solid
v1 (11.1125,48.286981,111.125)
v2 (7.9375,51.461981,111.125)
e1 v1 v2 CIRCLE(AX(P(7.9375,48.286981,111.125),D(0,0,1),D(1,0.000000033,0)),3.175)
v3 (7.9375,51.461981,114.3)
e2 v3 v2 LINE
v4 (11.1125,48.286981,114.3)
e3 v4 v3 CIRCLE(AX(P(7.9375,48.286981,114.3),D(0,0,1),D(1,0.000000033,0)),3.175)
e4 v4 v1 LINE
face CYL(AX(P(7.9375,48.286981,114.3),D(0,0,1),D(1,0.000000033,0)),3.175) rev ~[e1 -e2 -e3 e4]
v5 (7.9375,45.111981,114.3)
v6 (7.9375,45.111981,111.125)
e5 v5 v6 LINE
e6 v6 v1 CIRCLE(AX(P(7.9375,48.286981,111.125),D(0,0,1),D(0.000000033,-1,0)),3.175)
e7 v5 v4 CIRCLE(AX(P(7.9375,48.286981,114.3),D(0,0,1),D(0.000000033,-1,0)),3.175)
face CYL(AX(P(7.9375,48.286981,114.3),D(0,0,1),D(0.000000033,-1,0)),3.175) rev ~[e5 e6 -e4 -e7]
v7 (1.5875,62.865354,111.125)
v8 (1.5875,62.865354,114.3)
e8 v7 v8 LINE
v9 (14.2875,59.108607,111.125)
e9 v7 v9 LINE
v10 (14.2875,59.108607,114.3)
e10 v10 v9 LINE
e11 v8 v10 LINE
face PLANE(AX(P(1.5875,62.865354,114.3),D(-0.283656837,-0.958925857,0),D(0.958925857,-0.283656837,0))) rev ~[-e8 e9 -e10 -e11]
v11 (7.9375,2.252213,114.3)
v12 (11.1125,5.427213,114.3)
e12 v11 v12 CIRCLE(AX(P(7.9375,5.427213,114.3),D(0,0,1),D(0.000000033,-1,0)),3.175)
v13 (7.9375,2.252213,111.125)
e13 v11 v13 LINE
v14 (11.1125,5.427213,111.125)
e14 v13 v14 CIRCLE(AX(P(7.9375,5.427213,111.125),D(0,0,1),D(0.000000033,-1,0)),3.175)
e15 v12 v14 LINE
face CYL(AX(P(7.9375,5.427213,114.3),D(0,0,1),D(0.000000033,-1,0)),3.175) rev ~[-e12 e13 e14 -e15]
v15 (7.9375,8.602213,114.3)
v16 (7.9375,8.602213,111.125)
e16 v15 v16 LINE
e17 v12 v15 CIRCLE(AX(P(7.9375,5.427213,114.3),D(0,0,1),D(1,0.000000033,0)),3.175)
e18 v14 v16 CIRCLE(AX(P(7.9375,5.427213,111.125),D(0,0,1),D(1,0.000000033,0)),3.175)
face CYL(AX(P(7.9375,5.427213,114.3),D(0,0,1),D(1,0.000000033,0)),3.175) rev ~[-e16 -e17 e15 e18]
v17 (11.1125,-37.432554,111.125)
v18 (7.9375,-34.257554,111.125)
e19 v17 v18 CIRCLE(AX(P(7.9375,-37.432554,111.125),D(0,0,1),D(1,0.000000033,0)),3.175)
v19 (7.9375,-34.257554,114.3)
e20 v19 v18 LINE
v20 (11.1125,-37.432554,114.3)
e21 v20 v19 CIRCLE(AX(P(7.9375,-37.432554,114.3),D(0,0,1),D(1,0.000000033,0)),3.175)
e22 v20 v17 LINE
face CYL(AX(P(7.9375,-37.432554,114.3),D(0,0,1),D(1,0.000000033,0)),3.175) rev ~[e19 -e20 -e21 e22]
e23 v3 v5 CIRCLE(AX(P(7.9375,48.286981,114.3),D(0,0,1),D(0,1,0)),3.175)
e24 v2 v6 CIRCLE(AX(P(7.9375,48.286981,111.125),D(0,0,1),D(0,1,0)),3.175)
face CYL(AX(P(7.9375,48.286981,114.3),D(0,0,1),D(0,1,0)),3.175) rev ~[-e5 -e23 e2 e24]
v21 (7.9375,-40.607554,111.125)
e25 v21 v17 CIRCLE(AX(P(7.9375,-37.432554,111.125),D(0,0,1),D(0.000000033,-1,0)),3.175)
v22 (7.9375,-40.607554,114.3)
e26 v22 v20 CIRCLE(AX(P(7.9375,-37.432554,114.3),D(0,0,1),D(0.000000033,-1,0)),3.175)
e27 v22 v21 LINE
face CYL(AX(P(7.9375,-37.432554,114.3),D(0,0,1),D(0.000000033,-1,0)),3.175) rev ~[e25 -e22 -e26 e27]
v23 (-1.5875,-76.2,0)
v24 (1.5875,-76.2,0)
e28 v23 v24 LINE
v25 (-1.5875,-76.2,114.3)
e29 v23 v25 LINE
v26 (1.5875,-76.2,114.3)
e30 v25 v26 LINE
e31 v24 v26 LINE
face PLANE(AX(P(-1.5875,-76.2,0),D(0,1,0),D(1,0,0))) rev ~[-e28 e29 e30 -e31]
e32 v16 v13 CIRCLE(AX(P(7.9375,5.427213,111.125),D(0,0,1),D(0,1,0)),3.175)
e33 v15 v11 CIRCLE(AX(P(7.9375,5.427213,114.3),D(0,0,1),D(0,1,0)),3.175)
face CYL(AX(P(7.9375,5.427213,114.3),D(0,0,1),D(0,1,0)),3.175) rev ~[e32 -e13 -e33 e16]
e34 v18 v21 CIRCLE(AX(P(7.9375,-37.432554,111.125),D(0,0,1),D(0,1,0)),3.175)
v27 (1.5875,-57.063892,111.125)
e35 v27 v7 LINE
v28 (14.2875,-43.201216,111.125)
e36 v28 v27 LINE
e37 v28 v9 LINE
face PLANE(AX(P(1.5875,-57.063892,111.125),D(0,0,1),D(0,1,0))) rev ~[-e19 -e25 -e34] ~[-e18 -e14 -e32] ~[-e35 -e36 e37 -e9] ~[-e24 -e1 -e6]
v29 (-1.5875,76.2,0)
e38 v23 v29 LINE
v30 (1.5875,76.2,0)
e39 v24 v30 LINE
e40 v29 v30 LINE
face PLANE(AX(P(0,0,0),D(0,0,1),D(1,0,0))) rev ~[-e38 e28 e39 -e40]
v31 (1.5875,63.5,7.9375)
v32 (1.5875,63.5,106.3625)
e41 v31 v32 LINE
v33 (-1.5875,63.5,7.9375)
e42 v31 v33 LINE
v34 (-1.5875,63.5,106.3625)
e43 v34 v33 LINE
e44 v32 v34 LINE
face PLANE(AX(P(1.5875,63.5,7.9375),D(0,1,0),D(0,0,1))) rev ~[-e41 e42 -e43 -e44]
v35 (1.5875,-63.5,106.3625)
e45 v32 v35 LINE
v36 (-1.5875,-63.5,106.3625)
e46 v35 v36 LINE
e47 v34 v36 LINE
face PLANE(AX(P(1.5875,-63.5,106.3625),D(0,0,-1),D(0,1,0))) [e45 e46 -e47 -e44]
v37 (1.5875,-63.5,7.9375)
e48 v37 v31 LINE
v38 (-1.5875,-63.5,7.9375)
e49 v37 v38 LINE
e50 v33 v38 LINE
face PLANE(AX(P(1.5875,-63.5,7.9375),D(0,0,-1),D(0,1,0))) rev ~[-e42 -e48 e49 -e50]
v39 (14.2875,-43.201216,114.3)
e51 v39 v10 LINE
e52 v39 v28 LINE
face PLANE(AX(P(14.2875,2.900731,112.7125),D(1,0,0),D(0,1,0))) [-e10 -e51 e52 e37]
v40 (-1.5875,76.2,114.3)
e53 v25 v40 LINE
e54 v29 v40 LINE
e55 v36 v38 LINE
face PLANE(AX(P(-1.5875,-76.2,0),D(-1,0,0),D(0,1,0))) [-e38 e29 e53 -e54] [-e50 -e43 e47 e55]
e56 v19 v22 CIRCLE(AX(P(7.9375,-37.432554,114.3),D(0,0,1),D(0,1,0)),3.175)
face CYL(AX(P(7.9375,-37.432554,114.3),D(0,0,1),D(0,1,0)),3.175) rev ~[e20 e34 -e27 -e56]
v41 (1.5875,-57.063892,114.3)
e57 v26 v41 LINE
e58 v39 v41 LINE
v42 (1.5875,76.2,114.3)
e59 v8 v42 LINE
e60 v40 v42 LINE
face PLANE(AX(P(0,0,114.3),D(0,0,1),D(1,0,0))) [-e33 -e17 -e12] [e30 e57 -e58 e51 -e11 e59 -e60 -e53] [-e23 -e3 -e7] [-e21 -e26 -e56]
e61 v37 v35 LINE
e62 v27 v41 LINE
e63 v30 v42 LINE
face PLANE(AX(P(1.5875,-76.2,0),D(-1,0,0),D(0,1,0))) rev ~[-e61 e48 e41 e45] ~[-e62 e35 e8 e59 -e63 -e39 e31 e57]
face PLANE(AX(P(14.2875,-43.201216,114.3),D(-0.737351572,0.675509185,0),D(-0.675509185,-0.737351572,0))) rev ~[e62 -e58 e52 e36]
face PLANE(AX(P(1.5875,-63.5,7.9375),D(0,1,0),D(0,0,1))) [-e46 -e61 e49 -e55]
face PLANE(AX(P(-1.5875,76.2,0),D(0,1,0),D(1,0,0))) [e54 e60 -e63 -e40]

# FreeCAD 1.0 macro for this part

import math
import FreeCAD as App
import Part
import Sketcher
from FreeCAD import Vector
Q = App.Units.Quantity


def add_polygon(sketch, points):
    """Adds a closed chain of lines whose ends are joined by coincident constraints."""
    first, n = sketch.GeometryCount, len(points)
    for a, b in zip(points, points[1:] + points[:1]):
        sketch.addGeometry(Part.LineSegment(App.Vector(*a, 0), App.Vector(*b, 0)), False)
    for i in range(n):
        sketch.addConstraint(Sketcher.Constraint("Coincident", first + i, 2, first + (i + 1) % n, 1))

doc = App.newDocument("Part")
params = doc.addObject("Spreadsheet::Sheet", "Params")
for row, (alias, value) in enumerate([
    ("sketch1_height", "6 in"),
    ("sketch1_width", "0.125 in"),
    ("pad1_length", "4.5 in"),
    ("sketch2_width", "5 in"),
    ("sketch2_height", "3.875 in"),
    ("pocket1_length", "1 in"),
    ("sketch3_height", "0.125 in"),
    ("pad2_length", "0.5 in"),
    ("sketch4_width", "0.5 in"),
    ("pocket2_length", "1 in"),
    ("sketch5_radius", "0.125 in"),
    ("pocket3_length", "1 in"),
], start=1):
    params.set(f"A{row}", alias)
    params.set(f"B{row}", "=" + value)
    params.setAlias(f"B{row}", alias)

body = doc.addObject("PartDesign::Body", "Body")

# Sketch on XY plane
sketch1 = body.newObject("Sketcher::SketchObject", "Sketch")
sketch1.AttachmentSupport = (doc.getObject("XY_Plane"), [""])
sketch1.MapMode = "FlatFace"
add_polygon(sketch1, [(-1.6, 76.2), (-1.6, -76.2), (1.6, -76.2), (1.6, 76.2)])  # lines 0-3
sketch1.addConstraint([
    Sketcher.Constraint("Vertical", 0),
    Sketcher.Constraint("Horizontal", 1),
    Sketcher.Constraint("Vertical", 2),
    Sketcher.Constraint("Horizontal", 3),
    Sketcher.Constraint("Symmetric", 0, 2, 2, 2, -1, 1),
    Sketcher.Constraint("DistanceY", 0, 2, 0, 1, Q("6 in")),
    Sketcher.Constraint("DistanceX", 1, 1, 1, 2, Q("0.125 in")),
])
sketch1.setExpression("Constraints[9]", "Params.sketch1_height")
sketch1.setExpression("Constraints[10]", "Params.sketch1_width")
pad1 = body.newObject("PartDesign::Pad", "Pad")
pad1.Profile = sketch1
pad1.setExpression("Length", "Params.pad1_length")

# Sketch on YZ plane
sketch2 = body.newObject("Sketcher::SketchObject", "Sketch001")
sketch2.AttachmentSupport = (doc.getObject("YZ_Plane"), [""])
sketch2.MapMode = "FlatFace"
sketch2.AttachmentOffset = App.Placement(Vector(0, 0, 0.0625 * 25.4), App.Rotation())
add_polygon(sketch2, [(-64, 106), (-64, 8), (64, 8), (64, 106)])  # lines 0-3
sketch2.addConstraint([
    Sketcher.Constraint("Vertical", 0),
    Sketcher.Constraint("Horizontal", 1),
    Sketcher.Constraint("Vertical", 2),
    Sketcher.Constraint("Horizontal", 3),
    Sketcher.Constraint("DistanceX", 1, 1, 1, 2, Q("5 in")),
    Sketcher.Constraint("DistanceX", 0, 2, -1, 1, Q("2.5 in")),
    Sketcher.Constraint("DistanceY", 0, 2, 0, 1, Q("3.875 in")),
    Sketcher.Constraint("DistanceY", -1, 1, 0, 2, Q("0.3125 in")),
])
sketch2.setExpression("Constraints[8]", "Params.sketch2_width")
sketch2.setExpression("Constraints[10]", "Params.sketch2_height")
pocket1 = body.newObject("PartDesign::Pocket", "Pocket")
pocket1.Profile = sketch2
pocket1.setExpression("Length", "Params.pocket1_length")

# Sketch on YZ plane
sketch3 = body.newObject("Sketcher::SketchObject", "Sketch002")
sketch3.AttachmentSupport = (doc.getObject("YZ_Plane"), [""])
sketch3.MapMode = "FlatFace"
sketch3.AttachmentOffset = App.Placement(Vector(0, 0, 0.0625 * 25.4), App.Rotation())
add_polygon(sketch3, [(-57.1, 114.3), (-57.1, 111.1), (62.9, 111.1), (62.9, 114.3)])  # lines 0-3
sketch3.addConstraint([
    Sketcher.Constraint("Vertical", 0),
    Sketcher.Constraint("Horizontal", 1),
    Sketcher.Constraint("Vertical", 2),
    Sketcher.Constraint("Horizontal", 3),
    Sketcher.Constraint("DistanceY", -1, 1, 2, 2, Q("4.5 in")),
    Sketcher.Constraint("DistanceY", 0, 2, 0, 1, Q("0.125 in")),
    Sketcher.Constraint("DistanceX", 1, 1, 1, 2, Q("119.929246 mm")),
    Sketcher.Constraint("DistanceX", 0, 2, -1, 1, Q("57.063892 mm")),
])
sketch3.setExpression("Constraints[9]", "Params.sketch3_height")
pad2 = body.newObject("PartDesign::Pad", "Pad001")
pad2.Profile = sketch3
pad2.setExpression("Length", "Params.pad2_length")

# Sketch on XY plane
sketch4 = body.newObject("Sketcher::SketchObject", "Sketch003")
sketch4.AttachmentSupport = (doc.getObject("XY_Plane"), [""])
sketch4.MapMode = "FlatFace"
sketch4.AttachmentOffset = App.Placement(Vector(0, 0, 4.5 * 25.4), App.Rotation())
add_polygon(sketch4, [(14.3, 62.9), (1.6, 62.9), (14.3, 59.1)])  # lines 0-2
add_polygon(sketch4, [(14.3, -43.2), (1.6, -57.1), (14.3, -57.1)])  # lines 3-5
sketch4.addConstraint([
    Sketcher.Constraint("Horizontal", 0),
    Sketcher.Constraint("Vertical", 2),
    Sketcher.Constraint("Horizontal", 4),
    Sketcher.Constraint("Vertical", 5),
    Sketcher.Constraint("Vertical", 0, 2, 3, 2),
    Sketcher.Constraint("Vertical", 2, 2, 4, 2),
    Sketcher.Constraint("DistanceX", 0, 2, 0, 1, Q("0.5 in")),
    Sketcher.Constraint("DistanceX", -1, 1, 0, 2, Q("0.0625 in")),
    Sketcher.Constraint("DistanceY", 3, 2, 1, 2, Q("116.172499 mm")),
    Sketcher.Constraint("DistanceY", 2, 1, 2, 2, Q("3.756747 mm")),
    Sketcher.Constraint("DistanceY", 5, 1, 5, 2, Q("13.862676 mm")),
    Sketcher.Constraint("DistanceY", -1, 1, 0, 2, Q("62.865354 mm")),
])
sketch4.setExpression("Constraints[12]", "Params.sketch4_width")
pocket2 = body.newObject("PartDesign::Pocket", "Pocket001")
pocket2.Profile = sketch4
pocket2.setExpression("Length", "Params.pocket2_length")

# Sketch on XY plane
sketch5 = body.newObject("Sketcher::SketchObject", "Sketch004")
sketch5.AttachmentSupport = (doc.getObject("XY_Plane"), [""])
sketch5.MapMode = "FlatFace"
sketch5.AttachmentOffset = App.Placement(Vector(0, 0, 4.5 * 25.4), App.Rotation())
sketch5.addGeometry([
    Part.ArcOfCircle(Part.Circle(Vector(7.9, 48.3, 0), Vector(0, 0, 1), 3.2), math.radians(0), math.radians(90)),  # 0
    Part.ArcOfCircle(Part.Circle(Vector(7.9, 48.3, 0), Vector(0, 0, 1), 3.2), math.radians(90), math.radians(270)),  # 1
    Part.ArcOfCircle(Part.Circle(Vector(7.9, 48.3, 0), Vector(0, 0, 1), 3.2), math.radians(-90), math.radians(0)),  # 2
    Part.ArcOfCircle(Part.Circle(Vector(7.9, -37.4, 0), Vector(0, 0, 1), 3.2), math.radians(0), math.radians(90)),  # 3
    Part.ArcOfCircle(Part.Circle(Vector(7.9, -37.4, 0), Vector(0, 0, 1), 3.2), math.radians(90), math.radians(270)),  # 4
    Part.ArcOfCircle(Part.Circle(Vector(7.9, -37.4, 0), Vector(0, 0, 1), 3.2), math.radians(-90), math.radians(0)),  # 5
    Part.ArcOfCircle(Part.Circle(Vector(7.9, 5.4, 0), Vector(0, 0, 1), 3.2), math.radians(0), math.radians(90)),  # 6
    Part.ArcOfCircle(Part.Circle(Vector(7.9, 5.4, 0), Vector(0, 0, 1), 3.2), math.radians(90), math.radians(270)),  # 7
    Part.ArcOfCircle(Part.Circle(Vector(7.9, 5.4, 0), Vector(0, 0, 1), 3.2), math.radians(-90), math.radians(0)),  # 8
], False)
sketch5.addConstraint([
    Sketcher.Constraint("Tangent", 0, 2, 1, 1),
    Sketcher.Constraint("Tangent", 1, 2, 2, 1),
    Sketcher.Constraint("Tangent", 2, 2, 0, 1),
    Sketcher.Constraint("Tangent", 3, 2, 4, 1),
    Sketcher.Constraint("Tangent", 4, 2, 5, 1),
    Sketcher.Constraint("Tangent", 5, 2, 3, 1),
    Sketcher.Constraint("Tangent", 6, 2, 7, 1),
    Sketcher.Constraint("Tangent", 7, 2, 8, 1),
    Sketcher.Constraint("Tangent", 8, 2, 6, 1),
    Sketcher.Constraint("Equal", 2, 3),
    Sketcher.Constraint("Equal", 5, 6),
    Sketcher.Constraint("Horizontal", 1, 3, 2, 2),
    Sketcher.Constraint("Horizontal", 4, 3, 5, 2),
    Sketcher.Constraint("Horizontal", 7, 3, 8, 2),
    Sketcher.Constraint("Vertical", 2, 3, 3, 3),
    Sketcher.Constraint("Vertical", 5, 3, 6, 3),
    Sketcher.Constraint("Vertical", 8, 3, 0, 2),
    Sketcher.Constraint("Vertical", 0, 2, 1, 2),
    Sketcher.Constraint("Vertical", 1, 2, 3, 2),
    Sketcher.Constraint("Vertical", 3, 2, 4, 2),
    Sketcher.Constraint("Vertical", 4, 2, 6, 2),
    Sketcher.Constraint("Vertical", 6, 2, 7, 2),
    Sketcher.Constraint("Radius", 0, Q("0.125 in")),
    Sketcher.Constraint("DistanceX", -1, 1, 0, 3, Q("0.3125 in")),
    Sketcher.Constraint("DistanceY", -1, 1, 0, 3, Q("48.286981 mm")),
    Sketcher.Constraint("DistanceY", 6, 3, 0, 3, Q("42.859768 mm")),
    Sketcher.Constraint("DistanceY", 3, 3, -1, 1, Q("37.432554 mm")),
])
sketch5.setExpression("Constraints[22]", "Params.sketch5_radius")
pocket3 = body.newObject("PartDesign::Pocket", "Pocket002")
pocket3.Profile = sketch5
pocket3.setExpression("Length", "Params.pocket3_length")

doc.recompute()
